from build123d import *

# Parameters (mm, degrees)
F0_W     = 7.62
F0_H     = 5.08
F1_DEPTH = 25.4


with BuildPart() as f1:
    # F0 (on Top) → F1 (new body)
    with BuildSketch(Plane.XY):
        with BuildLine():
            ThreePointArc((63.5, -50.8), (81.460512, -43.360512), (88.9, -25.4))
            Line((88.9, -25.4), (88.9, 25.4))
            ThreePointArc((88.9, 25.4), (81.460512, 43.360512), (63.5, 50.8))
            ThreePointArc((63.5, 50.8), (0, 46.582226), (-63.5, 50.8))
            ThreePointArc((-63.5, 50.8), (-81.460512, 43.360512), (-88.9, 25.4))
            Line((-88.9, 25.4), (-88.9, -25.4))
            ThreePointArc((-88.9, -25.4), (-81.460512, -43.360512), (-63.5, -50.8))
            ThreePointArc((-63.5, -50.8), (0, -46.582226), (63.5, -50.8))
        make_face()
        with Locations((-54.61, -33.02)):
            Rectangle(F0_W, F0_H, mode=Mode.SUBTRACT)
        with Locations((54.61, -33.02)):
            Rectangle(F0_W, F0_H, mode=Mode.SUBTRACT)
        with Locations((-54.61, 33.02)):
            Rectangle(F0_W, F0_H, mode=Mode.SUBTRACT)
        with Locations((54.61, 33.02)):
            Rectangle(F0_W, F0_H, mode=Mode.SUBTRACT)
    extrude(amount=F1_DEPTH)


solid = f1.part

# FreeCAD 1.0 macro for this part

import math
import FreeCAD as App
import Part
import Sketcher
from FreeCAD import Vector
Q = App.Units.Quantity


def add_polygon(sketch, points):
    """Adds a closed chain of lines whose ends are joined by coincident constraints."""
    first, n = sketch.GeometryCount, len(points)
    for a, b in zip(points, points[1:] + points[:1]):
        sketch.addGeometry(Part.LineSegment(App.Vector(*a, 0), App.Vector(*b, 0)), False)
    for i in range(n):
        sketch.addConstraint(Sketcher.Constraint("Coincident", first + i, 2, first + (i + 1) % n, 1))

doc = App.newDocument("Part")
body = doc.addObject("PartDesign::Body", "Body")

# Sketch on XY plane
sketch1 = body.newObject("Sketcher::SketchObject", "Sketch")
sketch1.AttachmentSupport = (doc.getObject("XY_Plane"), [""])
sketch1.MapMode = "FlatFace"
sketch1.addGeometry(Part.ArcOfCircle(Part.Circle(Vector(63, -25, 0), Vector(0, 0, 1), 25), math.radians(-90), math.radians(0)), False)  # 0
sketch1.addGeometry(Part.LineSegment(Vector(89, -25, 0), Vector(89, 25, 0)), False)  # 1
sketch1.addGeometry(Part.ArcOfCircle(Part.Circle(Vector(63, 25, 0), Vector(0, 0, 1), 25), math.radians(0), math.radians(90)), False)  # 2
sketch1.addGeometry(Part.ArcOfCircle(Part.Circle(Vector(0, 527, 0), Vector(0, 0, 1), 480), math.radians(-97.6), math.radians(-82.4)), False)  # 3
sketch1.addGeometry(Part.ArcOfCircle(Part.Circle(Vector(-63, 25, 0), Vector(0, 0, 1), 25), math.radians(90), math.radians(180)), False)  # 4
sketch1.addGeometry(Part.LineSegment(Vector(-89, 25, 0), Vector(-89, -25, 0)), False)  # 5
sketch1.addGeometry(Part.ArcOfCircle(Part.Circle(Vector(-63, -25, 0), Vector(0, 0, 1), 25), math.radians(-180), math.radians(-90)), False)  # 6
sketch1.addGeometry(Part.ArcOfCircle(Part.Circle(Vector(0, -527, 0), Vector(0, 0, 1), 480), math.radians(82.4), math.radians(97.6)), False)  # 7
add_polygon(sketch1, [(-51, -36), (-58, -36), (-58, -30), (-51, -30)])  # lines 8-11
add_polygon(sketch1, [(58, -36), (51, -36), (51, -30), (58, -30)])  # lines 12-15
add_polygon(sketch1, [(-51, 30), (-58, 30), (-58, 36), (-51, 36)])  # lines 16-19
add_polygon(sketch1, [(58, 30), (51, 30), (51, 36), (58, 36)])  # lines 20-23
sketch1.addConstraint([
    Sketcher.Constraint("Tangent", 0, 2, 1, 1),
    Sketcher.Constraint("Tangent", 1, 2, 2, 1),
    Sketcher.Constraint("Coincident", 2, 2, 3, 2),
    Sketcher.Constraint("Coincident", 3, 1, 4, 1),
    Sketcher.Constraint("Tangent", 4, 2, 5, 1),
    Sketcher.Constraint("Tangent", 5, 2, 6, 1),
    Sketcher.Constraint("Coincident", 6, 2, 7, 2),
    Sketcher.Constraint("Coincident", 7, 1, 0, 1),
    Sketcher.Constraint("Vertical", 1),
    Sketcher.Constraint("Vertical", 5),
    Sketcher.Constraint("Horizontal", 8),
    Sketcher.Constraint("Vertical", 9),
    Sketcher.Constraint("Horizontal", 10),
    Sketcher.Constraint("Vertical", 11),
    Sketcher.Constraint("Horizontal", 12),
    Sketcher.Constraint("Vertical", 13),
    Sketcher.Constraint("Horizontal", 14),
    Sketcher.Constraint("Vertical", 15),
    Sketcher.Constraint("Horizontal", 16),
    Sketcher.Constraint("Vertical", 17),
    Sketcher.Constraint("Horizontal", 18),
    Sketcher.Constraint("Vertical", 19),
    Sketcher.Constraint("Horizontal", 20),
    Sketcher.Constraint("Vertical", 21),
    Sketcher.Constraint("Horizontal", 22),
    Sketcher.Constraint("Vertical", 23),
    Sketcher.Constraint("Equal", 0, 2),
    Sketcher.Constraint("Equal", 2, 4),
    Sketcher.Constraint("Equal", 4, 6),
    Sketcher.Constraint("Equal", 3, 7),
    Sketcher.Constraint("Symmetric", 0, 3, 4, 3, -1, 1),
    Sketcher.Constraint("Symmetric", 3, 3, 7, 3, -1, 1),
    Sketcher.Constraint("Symmetric", 14, 2, 16, 2, -1, 1),
    Sketcher.Constraint("Symmetric", 12, 2, 18, 2, -1, 1),
    Sketcher.Constraint("Symmetric", 10, 2, 20, 2, -1, 1),
    Sketcher.Constraint("Symmetric", 8, 2, 22, 2, -1, 1),
    Sketcher.Constraint("Symmetric", 2, 2, 3, 1, -2),
    Sketcher.Constraint("Symmetric", 11, 2, 12, 2, -2),
    Sketcher.Constraint("Symmetric", 9, 2, 14, 2, -2),
    Sketcher.Constraint("Horizontal", 0, 3, 6, 3),
    Sketcher.Constraint("Vertical", 0, 3, 2, 2),
    Sketcher.Constraint("Radius", 0, Q("1 in")),
    Sketcher.Constraint("DistanceY", 1, 1, 1, 2, Q("2 in")),
    Sketcher.Constraint("DistanceX", 8, 2, 8, 1, Q("0.3 in")),
    Sketcher.Constraint("DistanceY", 9, 1, 9, 2, Q("0.2 in")),
    Sketcher.Constraint("DistanceX", 10, 2, -1, 1, Q("2 in")),
    Sketcher.Constraint("DistanceX", 4, 3, 2, 3, Q("4.9999999 in")),
    Sketcher.Constraint("DistanceY", 8, 2, -1, 1, Q("1.4 in")),
    Sketcher.Constraint("Radius", 3, 480.115769),
])
pad1 = body.newObject("PartDesign::Pad", "Pad")
pad1.Profile = sketch1
pad1.Length = Q("1 in")

doc.recompute()
